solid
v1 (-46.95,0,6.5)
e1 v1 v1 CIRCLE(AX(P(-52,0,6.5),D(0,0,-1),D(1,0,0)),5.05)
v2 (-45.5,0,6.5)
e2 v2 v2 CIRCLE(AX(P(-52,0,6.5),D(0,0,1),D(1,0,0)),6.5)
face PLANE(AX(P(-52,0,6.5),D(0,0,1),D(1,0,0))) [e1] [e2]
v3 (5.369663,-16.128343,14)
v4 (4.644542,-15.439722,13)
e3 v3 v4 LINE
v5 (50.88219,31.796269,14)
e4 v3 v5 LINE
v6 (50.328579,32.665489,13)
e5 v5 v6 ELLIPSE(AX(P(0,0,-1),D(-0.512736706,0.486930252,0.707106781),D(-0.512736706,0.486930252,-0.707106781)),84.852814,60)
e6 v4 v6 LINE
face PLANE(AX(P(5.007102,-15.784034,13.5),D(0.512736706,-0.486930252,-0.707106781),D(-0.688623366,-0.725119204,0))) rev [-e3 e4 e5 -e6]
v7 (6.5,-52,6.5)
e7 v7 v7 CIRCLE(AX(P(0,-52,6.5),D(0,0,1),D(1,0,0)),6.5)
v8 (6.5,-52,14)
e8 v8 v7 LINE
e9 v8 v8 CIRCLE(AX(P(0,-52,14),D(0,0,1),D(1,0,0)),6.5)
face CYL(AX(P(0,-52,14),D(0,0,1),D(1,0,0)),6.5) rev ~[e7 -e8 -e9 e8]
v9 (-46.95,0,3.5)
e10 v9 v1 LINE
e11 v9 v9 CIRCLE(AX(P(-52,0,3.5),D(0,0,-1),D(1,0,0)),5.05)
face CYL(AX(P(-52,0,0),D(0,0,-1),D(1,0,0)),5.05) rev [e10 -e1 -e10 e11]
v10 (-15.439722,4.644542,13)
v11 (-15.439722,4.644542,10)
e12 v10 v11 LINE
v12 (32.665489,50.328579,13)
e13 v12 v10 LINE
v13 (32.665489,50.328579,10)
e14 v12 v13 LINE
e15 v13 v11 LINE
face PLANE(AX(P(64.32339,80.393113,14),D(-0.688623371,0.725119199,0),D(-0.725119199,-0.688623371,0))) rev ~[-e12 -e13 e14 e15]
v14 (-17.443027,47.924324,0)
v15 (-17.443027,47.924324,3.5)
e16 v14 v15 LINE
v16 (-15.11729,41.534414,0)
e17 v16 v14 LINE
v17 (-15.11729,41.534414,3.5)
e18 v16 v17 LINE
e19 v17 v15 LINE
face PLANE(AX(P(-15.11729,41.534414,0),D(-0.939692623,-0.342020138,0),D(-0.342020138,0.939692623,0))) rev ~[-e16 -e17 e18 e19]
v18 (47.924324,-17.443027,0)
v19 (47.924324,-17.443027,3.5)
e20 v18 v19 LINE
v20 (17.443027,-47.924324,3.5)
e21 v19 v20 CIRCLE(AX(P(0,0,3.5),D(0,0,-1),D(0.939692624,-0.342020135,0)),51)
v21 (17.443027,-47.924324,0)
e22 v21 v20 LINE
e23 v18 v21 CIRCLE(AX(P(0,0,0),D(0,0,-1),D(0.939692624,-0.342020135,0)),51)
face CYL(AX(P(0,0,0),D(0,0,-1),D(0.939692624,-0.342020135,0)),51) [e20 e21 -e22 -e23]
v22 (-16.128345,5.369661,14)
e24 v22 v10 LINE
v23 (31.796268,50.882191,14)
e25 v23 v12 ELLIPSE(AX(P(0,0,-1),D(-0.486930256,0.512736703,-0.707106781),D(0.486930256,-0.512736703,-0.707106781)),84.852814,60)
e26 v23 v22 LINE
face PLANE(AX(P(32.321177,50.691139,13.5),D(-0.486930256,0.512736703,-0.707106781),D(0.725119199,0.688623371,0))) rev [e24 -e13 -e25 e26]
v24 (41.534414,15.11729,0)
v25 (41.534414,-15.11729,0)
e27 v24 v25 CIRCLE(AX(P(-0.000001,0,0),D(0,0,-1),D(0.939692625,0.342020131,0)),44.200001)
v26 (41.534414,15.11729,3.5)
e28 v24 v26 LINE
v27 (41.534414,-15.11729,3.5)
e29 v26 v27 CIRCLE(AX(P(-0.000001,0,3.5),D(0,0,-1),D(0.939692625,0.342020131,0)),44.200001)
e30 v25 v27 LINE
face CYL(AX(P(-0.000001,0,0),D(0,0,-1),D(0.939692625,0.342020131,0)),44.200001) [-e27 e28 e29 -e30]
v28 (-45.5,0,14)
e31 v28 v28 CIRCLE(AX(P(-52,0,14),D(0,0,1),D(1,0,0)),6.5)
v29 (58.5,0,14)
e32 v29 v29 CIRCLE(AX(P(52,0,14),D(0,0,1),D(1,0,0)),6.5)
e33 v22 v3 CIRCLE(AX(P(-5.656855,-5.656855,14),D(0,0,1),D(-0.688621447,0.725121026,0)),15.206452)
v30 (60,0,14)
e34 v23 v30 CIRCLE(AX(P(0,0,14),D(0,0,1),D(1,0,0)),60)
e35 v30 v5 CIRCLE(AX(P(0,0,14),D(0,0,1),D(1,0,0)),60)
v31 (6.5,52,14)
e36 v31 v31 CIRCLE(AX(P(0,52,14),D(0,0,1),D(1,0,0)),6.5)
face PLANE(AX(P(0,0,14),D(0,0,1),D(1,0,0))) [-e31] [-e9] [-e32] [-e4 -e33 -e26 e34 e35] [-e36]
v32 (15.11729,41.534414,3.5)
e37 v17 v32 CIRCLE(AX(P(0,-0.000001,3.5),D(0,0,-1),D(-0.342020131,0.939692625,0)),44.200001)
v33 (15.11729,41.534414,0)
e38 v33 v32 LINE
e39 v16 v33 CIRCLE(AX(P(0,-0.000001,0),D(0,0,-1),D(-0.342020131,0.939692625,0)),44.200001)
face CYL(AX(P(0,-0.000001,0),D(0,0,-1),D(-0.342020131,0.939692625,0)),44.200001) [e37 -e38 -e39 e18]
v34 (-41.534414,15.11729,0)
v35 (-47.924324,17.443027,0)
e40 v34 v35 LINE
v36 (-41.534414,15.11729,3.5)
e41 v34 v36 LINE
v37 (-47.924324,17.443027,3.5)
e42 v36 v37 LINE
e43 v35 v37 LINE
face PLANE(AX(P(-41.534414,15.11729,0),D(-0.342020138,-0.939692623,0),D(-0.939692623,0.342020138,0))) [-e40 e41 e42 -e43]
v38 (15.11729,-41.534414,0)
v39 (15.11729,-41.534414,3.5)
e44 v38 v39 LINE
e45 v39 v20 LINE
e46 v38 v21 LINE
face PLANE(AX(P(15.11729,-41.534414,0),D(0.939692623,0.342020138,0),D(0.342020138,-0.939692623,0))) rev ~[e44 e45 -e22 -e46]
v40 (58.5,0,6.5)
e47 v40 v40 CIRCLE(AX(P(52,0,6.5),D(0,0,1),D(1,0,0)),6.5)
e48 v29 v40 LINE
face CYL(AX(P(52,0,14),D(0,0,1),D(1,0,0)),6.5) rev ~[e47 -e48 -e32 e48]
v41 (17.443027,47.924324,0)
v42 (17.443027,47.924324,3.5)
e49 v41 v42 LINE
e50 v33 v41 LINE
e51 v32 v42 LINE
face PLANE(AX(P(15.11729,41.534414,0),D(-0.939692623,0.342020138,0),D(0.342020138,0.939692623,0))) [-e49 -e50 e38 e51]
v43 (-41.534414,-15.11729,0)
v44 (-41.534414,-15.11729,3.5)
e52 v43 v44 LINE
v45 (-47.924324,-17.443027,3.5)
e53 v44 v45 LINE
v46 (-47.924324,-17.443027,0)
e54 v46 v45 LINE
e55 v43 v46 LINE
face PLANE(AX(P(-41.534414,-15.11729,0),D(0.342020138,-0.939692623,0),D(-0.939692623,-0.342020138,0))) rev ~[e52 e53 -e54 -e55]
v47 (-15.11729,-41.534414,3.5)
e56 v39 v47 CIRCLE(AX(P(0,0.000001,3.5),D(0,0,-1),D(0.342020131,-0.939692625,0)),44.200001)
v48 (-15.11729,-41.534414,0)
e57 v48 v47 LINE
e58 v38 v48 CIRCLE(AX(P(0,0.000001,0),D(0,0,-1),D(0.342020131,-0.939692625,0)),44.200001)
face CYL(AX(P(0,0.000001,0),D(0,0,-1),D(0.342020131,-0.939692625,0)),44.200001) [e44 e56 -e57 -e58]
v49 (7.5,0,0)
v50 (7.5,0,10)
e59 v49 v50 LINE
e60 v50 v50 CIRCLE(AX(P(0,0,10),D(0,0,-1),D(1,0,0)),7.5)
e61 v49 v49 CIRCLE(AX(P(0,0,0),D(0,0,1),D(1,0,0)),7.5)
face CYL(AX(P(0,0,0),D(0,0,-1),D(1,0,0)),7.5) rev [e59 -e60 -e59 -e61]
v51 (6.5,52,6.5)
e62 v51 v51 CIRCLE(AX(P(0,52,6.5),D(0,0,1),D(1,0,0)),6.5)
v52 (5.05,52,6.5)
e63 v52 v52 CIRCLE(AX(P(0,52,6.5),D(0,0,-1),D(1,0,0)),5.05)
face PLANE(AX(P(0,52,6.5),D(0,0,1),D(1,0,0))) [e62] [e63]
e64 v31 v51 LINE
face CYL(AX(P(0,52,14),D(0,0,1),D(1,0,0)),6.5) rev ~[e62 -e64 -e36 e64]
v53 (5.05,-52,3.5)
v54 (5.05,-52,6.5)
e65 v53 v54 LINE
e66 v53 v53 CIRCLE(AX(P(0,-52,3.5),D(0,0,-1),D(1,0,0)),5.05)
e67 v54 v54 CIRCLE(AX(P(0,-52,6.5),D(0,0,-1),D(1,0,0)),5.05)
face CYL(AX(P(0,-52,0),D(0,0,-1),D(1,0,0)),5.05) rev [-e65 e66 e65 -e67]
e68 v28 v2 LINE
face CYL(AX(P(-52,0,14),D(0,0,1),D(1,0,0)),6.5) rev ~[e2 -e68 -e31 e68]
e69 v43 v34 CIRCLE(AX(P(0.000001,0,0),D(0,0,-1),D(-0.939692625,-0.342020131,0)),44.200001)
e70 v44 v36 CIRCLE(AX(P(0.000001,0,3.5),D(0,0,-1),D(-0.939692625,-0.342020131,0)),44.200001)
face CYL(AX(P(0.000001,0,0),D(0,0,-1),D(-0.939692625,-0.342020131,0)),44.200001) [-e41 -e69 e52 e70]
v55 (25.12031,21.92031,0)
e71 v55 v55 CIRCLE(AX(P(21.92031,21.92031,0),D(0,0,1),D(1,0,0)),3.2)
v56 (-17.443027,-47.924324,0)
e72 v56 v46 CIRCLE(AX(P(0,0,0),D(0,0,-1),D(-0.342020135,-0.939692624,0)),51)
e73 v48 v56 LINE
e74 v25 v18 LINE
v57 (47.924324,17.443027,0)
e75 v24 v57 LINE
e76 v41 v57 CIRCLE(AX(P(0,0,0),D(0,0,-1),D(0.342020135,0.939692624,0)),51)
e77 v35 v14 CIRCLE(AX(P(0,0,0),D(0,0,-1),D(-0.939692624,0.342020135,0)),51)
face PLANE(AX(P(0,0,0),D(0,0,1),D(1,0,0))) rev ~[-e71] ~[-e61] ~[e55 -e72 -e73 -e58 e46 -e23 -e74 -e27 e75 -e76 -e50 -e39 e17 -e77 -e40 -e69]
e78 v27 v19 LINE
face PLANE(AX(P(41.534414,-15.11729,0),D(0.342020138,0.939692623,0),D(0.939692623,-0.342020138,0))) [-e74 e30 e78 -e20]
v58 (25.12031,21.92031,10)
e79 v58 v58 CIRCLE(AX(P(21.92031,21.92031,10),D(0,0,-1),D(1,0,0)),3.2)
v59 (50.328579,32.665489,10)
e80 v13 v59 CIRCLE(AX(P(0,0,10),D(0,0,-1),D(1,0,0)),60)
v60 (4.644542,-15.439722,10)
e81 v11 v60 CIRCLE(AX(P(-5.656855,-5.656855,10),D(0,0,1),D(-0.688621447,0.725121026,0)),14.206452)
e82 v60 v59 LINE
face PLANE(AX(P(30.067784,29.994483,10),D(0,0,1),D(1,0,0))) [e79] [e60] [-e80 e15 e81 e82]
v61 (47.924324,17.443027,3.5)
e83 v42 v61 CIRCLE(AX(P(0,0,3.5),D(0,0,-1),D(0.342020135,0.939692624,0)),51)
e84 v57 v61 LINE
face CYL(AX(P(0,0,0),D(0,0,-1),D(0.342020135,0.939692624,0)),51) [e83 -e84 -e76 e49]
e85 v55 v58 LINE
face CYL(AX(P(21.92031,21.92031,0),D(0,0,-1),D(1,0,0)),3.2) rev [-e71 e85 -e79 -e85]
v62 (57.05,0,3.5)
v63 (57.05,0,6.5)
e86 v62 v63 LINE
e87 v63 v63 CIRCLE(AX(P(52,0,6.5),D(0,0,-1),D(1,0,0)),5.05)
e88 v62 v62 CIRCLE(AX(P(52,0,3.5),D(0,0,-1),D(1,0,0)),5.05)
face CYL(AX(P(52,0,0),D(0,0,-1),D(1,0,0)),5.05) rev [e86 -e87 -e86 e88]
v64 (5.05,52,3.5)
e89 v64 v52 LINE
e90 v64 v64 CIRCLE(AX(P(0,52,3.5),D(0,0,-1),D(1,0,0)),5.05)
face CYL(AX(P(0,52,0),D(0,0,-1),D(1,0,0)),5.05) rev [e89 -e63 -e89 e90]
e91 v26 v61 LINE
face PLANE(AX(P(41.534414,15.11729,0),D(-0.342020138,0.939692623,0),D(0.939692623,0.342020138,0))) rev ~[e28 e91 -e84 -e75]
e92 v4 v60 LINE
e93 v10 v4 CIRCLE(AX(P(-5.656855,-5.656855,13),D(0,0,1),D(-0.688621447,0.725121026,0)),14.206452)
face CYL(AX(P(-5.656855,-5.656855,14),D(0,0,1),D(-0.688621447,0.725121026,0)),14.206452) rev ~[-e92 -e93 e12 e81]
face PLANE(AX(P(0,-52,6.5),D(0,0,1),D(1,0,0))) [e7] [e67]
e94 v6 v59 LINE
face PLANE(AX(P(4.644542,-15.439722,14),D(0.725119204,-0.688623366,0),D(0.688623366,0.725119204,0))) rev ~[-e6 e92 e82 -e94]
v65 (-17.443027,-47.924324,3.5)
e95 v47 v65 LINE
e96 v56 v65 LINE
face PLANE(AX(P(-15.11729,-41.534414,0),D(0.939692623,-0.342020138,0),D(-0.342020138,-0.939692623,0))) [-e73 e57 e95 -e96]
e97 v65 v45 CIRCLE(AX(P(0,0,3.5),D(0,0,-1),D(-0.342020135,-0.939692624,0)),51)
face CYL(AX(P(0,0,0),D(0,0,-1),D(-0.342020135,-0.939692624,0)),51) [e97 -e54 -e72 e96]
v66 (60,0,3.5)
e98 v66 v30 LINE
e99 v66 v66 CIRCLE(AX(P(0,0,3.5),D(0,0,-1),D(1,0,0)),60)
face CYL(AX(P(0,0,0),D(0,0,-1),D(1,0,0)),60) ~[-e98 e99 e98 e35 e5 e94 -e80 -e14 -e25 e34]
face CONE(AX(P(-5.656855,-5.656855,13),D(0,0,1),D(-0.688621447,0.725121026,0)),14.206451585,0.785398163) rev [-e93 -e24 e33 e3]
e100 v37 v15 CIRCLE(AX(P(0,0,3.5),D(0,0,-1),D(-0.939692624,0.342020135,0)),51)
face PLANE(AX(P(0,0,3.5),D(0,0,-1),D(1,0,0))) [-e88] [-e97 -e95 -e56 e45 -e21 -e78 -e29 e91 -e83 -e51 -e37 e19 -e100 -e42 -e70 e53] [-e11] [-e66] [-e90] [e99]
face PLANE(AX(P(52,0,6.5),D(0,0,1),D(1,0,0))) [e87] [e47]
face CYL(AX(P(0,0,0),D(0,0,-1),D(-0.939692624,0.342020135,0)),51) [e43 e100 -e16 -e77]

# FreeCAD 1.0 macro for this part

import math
import FreeCAD as App
import Part
import Sketcher
from FreeCAD import Vector
Q = App.Units.Quantity


def edges_at(feature, points):
    """Names of the edges that pass closest to the given points."""
    edges = feature.Shape.Edges
    near = lambda p: min(range(len(edges)), key=lambda i: edges[i].distToShape(Part.Vertex(*p))[0])
    return sorted({f"Edge{near(p) + 1}" for p in points})

doc = App.newDocument("Part")
body = doc.addObject("PartDesign::Body", "Body")

# Sketch on XY plane
sketch1 = doc.addObject("Sketcher::SketchObject", "Sketch")
body.addObject(sketch1)
sketch1.AttachmentSupport = (doc.XY_Plane, [""])
sketch1.MapMode = "FlatFace"
sketch1.addGeometry(Part.Circle(Vector(0, 0, 0), Vector(0, 0, 1), 60), False)
sketch1.addGeometry(Part.Circle(Vector(0, -52, 0), Vector(0, 0, 1), 5.05), False)
sketch1.addGeometry(Part.Circle(Vector(-52, 0, 0), Vector(0, 0, 1), 5.05), False)
sketch1.addGeometry(Part.Circle(Vector(0, 0, 0), Vector(0, 0, 1), 7.5), False)
sketch1.addGeometry(Part.Circle(Vector(21.92031, 21.92031, 0), Vector(0, 0, 1), 3.2), False)
sketch1.addGeometry(Part.Circle(Vector(52, 0, 0), Vector(0, 0, 1), 5.05), False)
sketch1.addGeometry(Part.Circle(Vector(0, 52, 0), Vector(0, 0, 1), 5.05), False)
sketch1.addConstraint(Sketcher.Constraint("Coincident", 0, 3, -1, 1))
sketch1.addConstraint(Sketcher.Constraint("Coincident", 3, 3, -1, 1))
sketch1.addConstraint(Sketcher.Constraint("Equal", 1, 2))
sketch1.addConstraint(Sketcher.Constraint("Equal", 2, 5))
sketch1.addConstraint(Sketcher.Constraint("Equal", 5, 6))
sketch1.addConstraint(Sketcher.Constraint("Symmetric", 2, 3, 5, 3, -1, 1))
sketch1.addConstraint(Sketcher.Constraint("Symmetric", 1, 3, 6, 3, -1, 1))
sketch1.addConstraint(Sketcher.Constraint("PointOnObject", 1, 3, -2))
sketch1.addConstraint(Sketcher.Constraint("PointOnObject", 2, 3, -1))
sketch1.addConstraint(Sketcher.Constraint("Diameter", 0, Q("120 mm")))
sketch1.addConstraint(Sketcher.Constraint("Diameter", 3, Q("15 mm")))
sketch1.addConstraint(Sketcher.Constraint("Diameter", 1, Q("10.1 mm")))
sketch1.addConstraint(Sketcher.Constraint("Diameter", 4, Q("6.4 mm")))
sketch1.addConstraint(Sketcher.Constraint("DistanceY", 1, 3, -1, 1, Q("52 mm")))
sketch1.addConstraint(Sketcher.Constraint("DistanceX", 2, 3, -1, 1, Q("52 mm")))
sketch1.addConstraint(Sketcher.Constraint("DistanceX", -1, 1, 4, 3, Q("21.92031 mm")))
sketch1.addConstraint(Sketcher.Constraint("DistanceY", -1, 1, 4, 3, Q("21.92031 mm")))
pad1 = doc.addObject("PartDesign::Pad", "Pad")
body.addObject(pad1)
pad1.Profile = sketch1
pad1.Length = 14

# Sketch on XY plane
sketch2 = doc.addObject("Sketcher::SketchObject", "Sketch001")
body.addObject(sketch2)
sketch2.AttachmentSupport = (doc.XY_Plane, [""])
sketch2.MapMode = "FlatFace"
sketch2.addGeometry(Part.Circle(Vector(0, 0, 0), Vector(0, 0, 1), 70), False)
sketch2.addGeometry(Part.ArcOfCircle(Part.Circle(Vector(0.000001, 0, 0), Vector(0, 0, 1), 44.200001), math.radians(160.000001), math.radians(199.999999)), False)
sketch2.addGeometry(Part.LineSegment(Vector(-41.534414, -15.11729, 0), Vector(-47.924324, -17.443027, 0)), False)
sketch2.addGeometry(Part.ArcOfCircle(Part.Circle(Vector(0, 0, 0), Vector(0, 0, 1), 51), math.radians(-160.000001), math.radians(-109.999999)), False)
sketch2.addGeometry(Part.LineSegment(Vector(-17.443027, -47.924324, 0), Vector(-15.11729, -41.534414, 0)), False)
sketch2.addGeometry(Part.ArcOfCircle(Part.Circle(Vector(0, 0.000001, 0), Vector(0, 0, 1), 44.200001), math.radians(-109.999999), math.radians(-70.000001)), False)
sketch2.addGeometry(Part.LineSegment(Vector(15.11729, -41.534414, 0), Vector(17.443027, -47.924324, 0)), False)
sketch2.addGeometry(Part.ArcOfCircle(Part.Circle(Vector(0, 0, 0), Vector(0, 0, 1), 51), math.radians(-70.000001), math.radians(-19.999999)), False)
sketch2.addGeometry(Part.LineSegment(Vector(47.924324, -17.443027, 0), Vector(41.534414, -15.11729, 0)), False)
sketch2.addGeometry(Part.ArcOfCircle(Part.Circle(Vector(-0.000001, 0, 0), Vector(0, 0, 1), 44.200001), math.radians(-19.999999), math.radians(19.999999)), False)
sketch2.addGeometry(Part.LineSegment(Vector(41.534414, 15.11729, 0), Vector(47.924324, 17.443027, 0)), False)
sketch2.addGeometry(Part.ArcOfCircle(Part.Circle(Vector(0, 0, 0), Vector(0, 0, 1), 51), math.radians(19.999999), math.radians(70.000001)), False)
sketch2.addGeometry(Part.LineSegment(Vector(17.443027, 47.924324, 0), Vector(15.11729, 41.534414, 0)), False)
sketch2.addGeometry(Part.ArcOfCircle(Part.Circle(Vector(0, -0.000001, 0), Vector(0, 0, 1), 44.200001), math.radians(70.000001), math.radians(109.999999)), False)
sketch2.addGeometry(Part.LineSegment(Vector(-15.11729, 41.534414, 0), Vector(-17.443027, 47.924324, 0)), False)
sketch2.addGeometry(Part.ArcOfCircle(Part.Circle(Vector(0, 0, 0), Vector(0, 0, 1), 51), math.radians(109.999999), math.radians(160.000001)), False)
sketch2.addGeometry(Part.LineSegment(Vector(-47.924324, 17.443027, 0), Vector(-41.534414, 15.11729, 0)), False)
sketch2.addConstraint(Sketcher.Constraint("Coincident", 1, 2, 2, 1))
sketch2.addConstraint(Sketcher.Constraint("Coincident", 2, 2, 3, 1))
sketch2.addConstraint(Sketcher.Constraint("Coincident", 3, 2, 4, 1))
sketch2.addConstraint(Sketcher.Constraint("Coincident", 4, 2, 5, 1))
sketch2.addConstraint(Sketcher.Constraint("Coincident", 5, 2, 6, 1))
sketch2.addConstraint(Sketcher.Constraint("Coincident", 6, 2, 7, 1))
sketch2.addConstraint(Sketcher.Constraint("Coincident", 7, 2, 8, 1))
sketch2.addConstraint(Sketcher.Constraint("Coincident", 8, 2, 9, 1))
sketch2.addConstraint(Sketcher.Constraint("Coincident", 9, 2, 10, 1))
sketch2.addConstraint(Sketcher.Constraint("Coincident", 10, 2, 11, 1))
sketch2.addConstraint(Sketcher.Constraint("Coincident", 11, 2, 12, 1))
sketch2.addConstraint(Sketcher.Constraint("Coincident", 12, 2, 13, 1))
sketch2.addConstraint(Sketcher.Constraint("Coincident", 13, 2, 14, 1))
sketch2.addConstraint(Sketcher.Constraint("Coincident", 14, 2, 15, 1))
sketch2.addConstraint(Sketcher.Constraint("Coincident", 15, 2, 16, 1))
sketch2.addConstraint(Sketcher.Constraint("Coincident", 16, 2, 1, 1))
sketch2.addConstraint(Sketcher.Constraint("Coincident", 0, 3, -1, 1))
sketch2.addConstraint(Sketcher.Constraint("Coincident", 1, 3, -1, 1))
sketch2.addConstraint(Sketcher.Constraint("Coincident", 3, 3, -1, 1))
sketch2.addConstraint(Sketcher.Constraint("Coincident", 5, 3, -1, 1))
sketch2.addConstraint(Sketcher.Constraint("Coincident", 7, 3, -1, 1))
sketch2.addConstraint(Sketcher.Constraint("Coincident", 9, 3, -1, 1))
sketch2.addConstraint(Sketcher.Constraint("Coincident", 11, 3, -1, 1))
sketch2.addConstraint(Sketcher.Constraint("Coincident", 13, 3, -1, 1))
sketch2.addConstraint(Sketcher.Constraint("Coincident", 15, 3, -1, 1))
sketch2.addConstraint(Sketcher.Constraint("Equal", 1, 5))
sketch2.addConstraint(Sketcher.Constraint("Equal", 3, 7))
sketch2.addConstraint(Sketcher.Constraint("Equal", 5, 9))
sketch2.addConstraint(Sketcher.Constraint("Equal", 7, 11))
sketch2.addConstraint(Sketcher.Constraint("Equal", 9, 13))
sketch2.addConstraint(Sketcher.Constraint("Equal", 11, 15))
sketch2.addConstraint(Sketcher.Constraint("Perpendicular", 2, 6))
sketch2.addConstraint(Sketcher.Constraint("Perpendicular", 4, 8))
sketch2.addConstraint(Sketcher.Constraint("Perpendicular", 6, 10))
sketch2.addConstraint(Sketcher.Constraint("Perpendicular", 8, 12))
sketch2.addConstraint(Sketcher.Constraint("Perpendicular", 10, 14))
sketch2.addConstraint(Sketcher.Constraint("Perpendicular", 12, 16))
sketch2.addConstraint(Sketcher.Constraint("Horizontal", 4, 2, 5, 2))
sketch2.addConstraint(Sketcher.Constraint("Horizontal", 3, 2, 6, 2))
sketch2.addConstraint(Sketcher.Constraint("Horizontal", 2, 2, 7, 2))
sketch2.addConstraint(Sketcher.Constraint("Horizontal", 12, 2, 13, 2))
sketch2.addConstraint(Sketcher.Constraint("Horizontal", 10, 2, 15, 2))
sketch2.addConstraint(Sketcher.Constraint("Vertical", 8, 2, 9, 2))
sketch2.addConstraint(Sketcher.Constraint("Vertical", 6, 2, 11, 2))
sketch2.addConstraint(Sketcher.Constraint("Diameter", 0, Q("140 mm")))
sketch2.addConstraint(Sketcher.Constraint("Radius", 3, Q("51 mm")))
sketch2.addConstraint(Sketcher.Constraint("Radius", 1, Q("44.200001 mm")))
sketch2.addConstraint(Sketcher.Constraint("Angle", 2, Q("-160 deg")))
sketch2.addConstraint(Sketcher.Constraint("DistanceY", 1, 2, -1, 1, Q("15.11729 mm")))
sketch2.addConstraint(Sketcher.Constraint("DistanceX", 4, 2, -1, 1, Q("15.11729 mm")))
pocket1 = doc.addObject("PartDesign::Pocket", "Pocket")
body.addObject(pocket1)
pocket1.Profile = sketch2
pocket1.Length = 3.5
pocket1.Reversed = True

# Sketch on XY plane
sketch3 = doc.addObject("Sketcher::SketchObject", "Sketch002")
body.addObject(sketch3)
sketch3.AttachmentSupport = (doc.XY_Plane, [""])
sketch3.MapMode = "FlatFace"
sketch3.AttachmentOffset = App.Placement(Vector(0, 0, 14), App.Rotation())
sketch3.addGeometry(Part.LineSegment(Vector(4.644542, -15.439722, 0), Vector(81.321028, 65.300484, 0)), False)
sketch3.addGeometry(Part.LineSegment(Vector(81.321028, 65.300484, 0), Vector(64.32339, 80.393113, 0)), False)
sketch3.addGeometry(Part.LineSegment(Vector(64.32339, 80.393113, 0), Vector(-15.439722, 4.644542, 0)), False)
sketch3.addGeometry(Part.ArcOfCircle(Part.Circle(Vector(-5.656855, -5.656855, 0), Vector(0, 0, 1), 14.206452), math.radians(133.521083), math.radians(316.478917)), False)
sketch3.addConstraint(Sketcher.Constraint("Coincident", 0, 2, 1, 1))
sketch3.addConstraint(Sketcher.Constraint("Coincident", 1, 2, 2, 1))
sketch3.addConstraint(Sketcher.Constraint("Coincident", 2, 2, 3, 1))
sketch3.addConstraint(Sketcher.Constraint("Coincident", 3, 2, 0, 1))
sketch3.addConstraint(Sketcher.Constraint("Distance", 2, Q("110 mm")))
sketch3.addConstraint(Sketcher.Constraint("Radius", 3, Q("14.206452 mm")))
sketch3.addConstraint(Sketcher.Constraint("DistanceX", -1, 1, 0, 2, Q("81.321028 mm")))
sketch3.addConstraint(Sketcher.Constraint("DistanceX", -1, 1, 1, 2, Q("64.32339 mm")))
sketch3.addConstraint(Sketcher.Constraint("DistanceY", 3, 3, 0, 2, Q("70.957339 mm")))
sketch3.addConstraint(Sketcher.Constraint("DistanceY", 0, 2, 1, 2, Q("15.092629 mm")))
sketch3.addConstraint(Sketcher.Constraint("DistanceY", 2, 2, 1, 2, Q("75.748571 mm")))
sketch3.addConstraint(Sketcher.Constraint("Distance", 0, Q("111.347494 mm")))
sketch3.addConstraint(Sketcher.Constraint("DistanceY", 3, 3, -1, 1, Q("5.656855 mm")))
pocket2 = doc.addObject("PartDesign::Pocket", "Pocket001")
body.addObject(pocket2)
pocket2.Profile = sketch3
pocket2.Length = 4

# Sketch on XY plane
sketch4 = doc.addObject("Sketcher::SketchObject", "Sketch003")
body.addObject(sketch4)
sketch4.AttachmentSupport = (doc.XY_Plane, [""])
sketch4.MapMode = "FlatFace"
sketch4.AttachmentOffset = App.Placement(Vector(0, 0, 14), App.Rotation())
sketch4.addGeometry(Part.Circle(Vector(0, 52, 0), Vector(0, 0, 1), 6.5), False)
sketch4.addGeometry(Part.Circle(Vector(52, 0, 0), Vector(0, 0, 1), 6.5), False)
sketch4.addGeometry(Part.Circle(Vector(0, -52, 0), Vector(0, 0, 1), 6.5), False)
sketch4.addGeometry(Part.Circle(Vector(-52, 0, 0), Vector(0, 0, 1), 6.5), False)
sketch4.addConstraint(Sketcher.Constraint("Equal", 0, 1))
sketch4.addConstraint(Sketcher.Constraint("Equal", 1, 2))
sketch4.addConstraint(Sketcher.Constraint("Equal", 2, 3))
sketch4.addConstraint(Sketcher.Constraint("Symmetric", 0, 3, 2, 3, -1, 1))
sketch4.addConstraint(Sketcher.Constraint("Symmetric", 1, 3, 3, 3, -1, 1))
sketch4.addConstraint(Sketcher.Constraint("PointOnObject", 0, 3, -2))
sketch4.addConstraint(Sketcher.Constraint("PointOnObject", 1, 3, -1))
sketch4.addConstraint(Sketcher.Constraint("Diameter", 0, Q("13 mm")))
sketch4.addConstraint(Sketcher.Constraint("DistanceY", -1, 1, 0, 3, Q("52 mm")))
sketch4.addConstraint(Sketcher.Constraint("DistanceX", -1, 1, 1, 3, Q("52 mm")))
pocket3 = doc.addObject("PartDesign::Pocket", "Pocket002")
body.addObject(pocket3)
pocket3.Profile = sketch4
pocket3.Length = 7.5
doc.recompute()

chamfer = doc.addObject("PartDesign::Chamfer", "Chamfer")
body.addObject(chamfer)
chamfer.Base = (pocket3, edges_at(pocket3, [(8.613, 27.487, 14)]))
chamfer.Size = 1

doc.recompute()
